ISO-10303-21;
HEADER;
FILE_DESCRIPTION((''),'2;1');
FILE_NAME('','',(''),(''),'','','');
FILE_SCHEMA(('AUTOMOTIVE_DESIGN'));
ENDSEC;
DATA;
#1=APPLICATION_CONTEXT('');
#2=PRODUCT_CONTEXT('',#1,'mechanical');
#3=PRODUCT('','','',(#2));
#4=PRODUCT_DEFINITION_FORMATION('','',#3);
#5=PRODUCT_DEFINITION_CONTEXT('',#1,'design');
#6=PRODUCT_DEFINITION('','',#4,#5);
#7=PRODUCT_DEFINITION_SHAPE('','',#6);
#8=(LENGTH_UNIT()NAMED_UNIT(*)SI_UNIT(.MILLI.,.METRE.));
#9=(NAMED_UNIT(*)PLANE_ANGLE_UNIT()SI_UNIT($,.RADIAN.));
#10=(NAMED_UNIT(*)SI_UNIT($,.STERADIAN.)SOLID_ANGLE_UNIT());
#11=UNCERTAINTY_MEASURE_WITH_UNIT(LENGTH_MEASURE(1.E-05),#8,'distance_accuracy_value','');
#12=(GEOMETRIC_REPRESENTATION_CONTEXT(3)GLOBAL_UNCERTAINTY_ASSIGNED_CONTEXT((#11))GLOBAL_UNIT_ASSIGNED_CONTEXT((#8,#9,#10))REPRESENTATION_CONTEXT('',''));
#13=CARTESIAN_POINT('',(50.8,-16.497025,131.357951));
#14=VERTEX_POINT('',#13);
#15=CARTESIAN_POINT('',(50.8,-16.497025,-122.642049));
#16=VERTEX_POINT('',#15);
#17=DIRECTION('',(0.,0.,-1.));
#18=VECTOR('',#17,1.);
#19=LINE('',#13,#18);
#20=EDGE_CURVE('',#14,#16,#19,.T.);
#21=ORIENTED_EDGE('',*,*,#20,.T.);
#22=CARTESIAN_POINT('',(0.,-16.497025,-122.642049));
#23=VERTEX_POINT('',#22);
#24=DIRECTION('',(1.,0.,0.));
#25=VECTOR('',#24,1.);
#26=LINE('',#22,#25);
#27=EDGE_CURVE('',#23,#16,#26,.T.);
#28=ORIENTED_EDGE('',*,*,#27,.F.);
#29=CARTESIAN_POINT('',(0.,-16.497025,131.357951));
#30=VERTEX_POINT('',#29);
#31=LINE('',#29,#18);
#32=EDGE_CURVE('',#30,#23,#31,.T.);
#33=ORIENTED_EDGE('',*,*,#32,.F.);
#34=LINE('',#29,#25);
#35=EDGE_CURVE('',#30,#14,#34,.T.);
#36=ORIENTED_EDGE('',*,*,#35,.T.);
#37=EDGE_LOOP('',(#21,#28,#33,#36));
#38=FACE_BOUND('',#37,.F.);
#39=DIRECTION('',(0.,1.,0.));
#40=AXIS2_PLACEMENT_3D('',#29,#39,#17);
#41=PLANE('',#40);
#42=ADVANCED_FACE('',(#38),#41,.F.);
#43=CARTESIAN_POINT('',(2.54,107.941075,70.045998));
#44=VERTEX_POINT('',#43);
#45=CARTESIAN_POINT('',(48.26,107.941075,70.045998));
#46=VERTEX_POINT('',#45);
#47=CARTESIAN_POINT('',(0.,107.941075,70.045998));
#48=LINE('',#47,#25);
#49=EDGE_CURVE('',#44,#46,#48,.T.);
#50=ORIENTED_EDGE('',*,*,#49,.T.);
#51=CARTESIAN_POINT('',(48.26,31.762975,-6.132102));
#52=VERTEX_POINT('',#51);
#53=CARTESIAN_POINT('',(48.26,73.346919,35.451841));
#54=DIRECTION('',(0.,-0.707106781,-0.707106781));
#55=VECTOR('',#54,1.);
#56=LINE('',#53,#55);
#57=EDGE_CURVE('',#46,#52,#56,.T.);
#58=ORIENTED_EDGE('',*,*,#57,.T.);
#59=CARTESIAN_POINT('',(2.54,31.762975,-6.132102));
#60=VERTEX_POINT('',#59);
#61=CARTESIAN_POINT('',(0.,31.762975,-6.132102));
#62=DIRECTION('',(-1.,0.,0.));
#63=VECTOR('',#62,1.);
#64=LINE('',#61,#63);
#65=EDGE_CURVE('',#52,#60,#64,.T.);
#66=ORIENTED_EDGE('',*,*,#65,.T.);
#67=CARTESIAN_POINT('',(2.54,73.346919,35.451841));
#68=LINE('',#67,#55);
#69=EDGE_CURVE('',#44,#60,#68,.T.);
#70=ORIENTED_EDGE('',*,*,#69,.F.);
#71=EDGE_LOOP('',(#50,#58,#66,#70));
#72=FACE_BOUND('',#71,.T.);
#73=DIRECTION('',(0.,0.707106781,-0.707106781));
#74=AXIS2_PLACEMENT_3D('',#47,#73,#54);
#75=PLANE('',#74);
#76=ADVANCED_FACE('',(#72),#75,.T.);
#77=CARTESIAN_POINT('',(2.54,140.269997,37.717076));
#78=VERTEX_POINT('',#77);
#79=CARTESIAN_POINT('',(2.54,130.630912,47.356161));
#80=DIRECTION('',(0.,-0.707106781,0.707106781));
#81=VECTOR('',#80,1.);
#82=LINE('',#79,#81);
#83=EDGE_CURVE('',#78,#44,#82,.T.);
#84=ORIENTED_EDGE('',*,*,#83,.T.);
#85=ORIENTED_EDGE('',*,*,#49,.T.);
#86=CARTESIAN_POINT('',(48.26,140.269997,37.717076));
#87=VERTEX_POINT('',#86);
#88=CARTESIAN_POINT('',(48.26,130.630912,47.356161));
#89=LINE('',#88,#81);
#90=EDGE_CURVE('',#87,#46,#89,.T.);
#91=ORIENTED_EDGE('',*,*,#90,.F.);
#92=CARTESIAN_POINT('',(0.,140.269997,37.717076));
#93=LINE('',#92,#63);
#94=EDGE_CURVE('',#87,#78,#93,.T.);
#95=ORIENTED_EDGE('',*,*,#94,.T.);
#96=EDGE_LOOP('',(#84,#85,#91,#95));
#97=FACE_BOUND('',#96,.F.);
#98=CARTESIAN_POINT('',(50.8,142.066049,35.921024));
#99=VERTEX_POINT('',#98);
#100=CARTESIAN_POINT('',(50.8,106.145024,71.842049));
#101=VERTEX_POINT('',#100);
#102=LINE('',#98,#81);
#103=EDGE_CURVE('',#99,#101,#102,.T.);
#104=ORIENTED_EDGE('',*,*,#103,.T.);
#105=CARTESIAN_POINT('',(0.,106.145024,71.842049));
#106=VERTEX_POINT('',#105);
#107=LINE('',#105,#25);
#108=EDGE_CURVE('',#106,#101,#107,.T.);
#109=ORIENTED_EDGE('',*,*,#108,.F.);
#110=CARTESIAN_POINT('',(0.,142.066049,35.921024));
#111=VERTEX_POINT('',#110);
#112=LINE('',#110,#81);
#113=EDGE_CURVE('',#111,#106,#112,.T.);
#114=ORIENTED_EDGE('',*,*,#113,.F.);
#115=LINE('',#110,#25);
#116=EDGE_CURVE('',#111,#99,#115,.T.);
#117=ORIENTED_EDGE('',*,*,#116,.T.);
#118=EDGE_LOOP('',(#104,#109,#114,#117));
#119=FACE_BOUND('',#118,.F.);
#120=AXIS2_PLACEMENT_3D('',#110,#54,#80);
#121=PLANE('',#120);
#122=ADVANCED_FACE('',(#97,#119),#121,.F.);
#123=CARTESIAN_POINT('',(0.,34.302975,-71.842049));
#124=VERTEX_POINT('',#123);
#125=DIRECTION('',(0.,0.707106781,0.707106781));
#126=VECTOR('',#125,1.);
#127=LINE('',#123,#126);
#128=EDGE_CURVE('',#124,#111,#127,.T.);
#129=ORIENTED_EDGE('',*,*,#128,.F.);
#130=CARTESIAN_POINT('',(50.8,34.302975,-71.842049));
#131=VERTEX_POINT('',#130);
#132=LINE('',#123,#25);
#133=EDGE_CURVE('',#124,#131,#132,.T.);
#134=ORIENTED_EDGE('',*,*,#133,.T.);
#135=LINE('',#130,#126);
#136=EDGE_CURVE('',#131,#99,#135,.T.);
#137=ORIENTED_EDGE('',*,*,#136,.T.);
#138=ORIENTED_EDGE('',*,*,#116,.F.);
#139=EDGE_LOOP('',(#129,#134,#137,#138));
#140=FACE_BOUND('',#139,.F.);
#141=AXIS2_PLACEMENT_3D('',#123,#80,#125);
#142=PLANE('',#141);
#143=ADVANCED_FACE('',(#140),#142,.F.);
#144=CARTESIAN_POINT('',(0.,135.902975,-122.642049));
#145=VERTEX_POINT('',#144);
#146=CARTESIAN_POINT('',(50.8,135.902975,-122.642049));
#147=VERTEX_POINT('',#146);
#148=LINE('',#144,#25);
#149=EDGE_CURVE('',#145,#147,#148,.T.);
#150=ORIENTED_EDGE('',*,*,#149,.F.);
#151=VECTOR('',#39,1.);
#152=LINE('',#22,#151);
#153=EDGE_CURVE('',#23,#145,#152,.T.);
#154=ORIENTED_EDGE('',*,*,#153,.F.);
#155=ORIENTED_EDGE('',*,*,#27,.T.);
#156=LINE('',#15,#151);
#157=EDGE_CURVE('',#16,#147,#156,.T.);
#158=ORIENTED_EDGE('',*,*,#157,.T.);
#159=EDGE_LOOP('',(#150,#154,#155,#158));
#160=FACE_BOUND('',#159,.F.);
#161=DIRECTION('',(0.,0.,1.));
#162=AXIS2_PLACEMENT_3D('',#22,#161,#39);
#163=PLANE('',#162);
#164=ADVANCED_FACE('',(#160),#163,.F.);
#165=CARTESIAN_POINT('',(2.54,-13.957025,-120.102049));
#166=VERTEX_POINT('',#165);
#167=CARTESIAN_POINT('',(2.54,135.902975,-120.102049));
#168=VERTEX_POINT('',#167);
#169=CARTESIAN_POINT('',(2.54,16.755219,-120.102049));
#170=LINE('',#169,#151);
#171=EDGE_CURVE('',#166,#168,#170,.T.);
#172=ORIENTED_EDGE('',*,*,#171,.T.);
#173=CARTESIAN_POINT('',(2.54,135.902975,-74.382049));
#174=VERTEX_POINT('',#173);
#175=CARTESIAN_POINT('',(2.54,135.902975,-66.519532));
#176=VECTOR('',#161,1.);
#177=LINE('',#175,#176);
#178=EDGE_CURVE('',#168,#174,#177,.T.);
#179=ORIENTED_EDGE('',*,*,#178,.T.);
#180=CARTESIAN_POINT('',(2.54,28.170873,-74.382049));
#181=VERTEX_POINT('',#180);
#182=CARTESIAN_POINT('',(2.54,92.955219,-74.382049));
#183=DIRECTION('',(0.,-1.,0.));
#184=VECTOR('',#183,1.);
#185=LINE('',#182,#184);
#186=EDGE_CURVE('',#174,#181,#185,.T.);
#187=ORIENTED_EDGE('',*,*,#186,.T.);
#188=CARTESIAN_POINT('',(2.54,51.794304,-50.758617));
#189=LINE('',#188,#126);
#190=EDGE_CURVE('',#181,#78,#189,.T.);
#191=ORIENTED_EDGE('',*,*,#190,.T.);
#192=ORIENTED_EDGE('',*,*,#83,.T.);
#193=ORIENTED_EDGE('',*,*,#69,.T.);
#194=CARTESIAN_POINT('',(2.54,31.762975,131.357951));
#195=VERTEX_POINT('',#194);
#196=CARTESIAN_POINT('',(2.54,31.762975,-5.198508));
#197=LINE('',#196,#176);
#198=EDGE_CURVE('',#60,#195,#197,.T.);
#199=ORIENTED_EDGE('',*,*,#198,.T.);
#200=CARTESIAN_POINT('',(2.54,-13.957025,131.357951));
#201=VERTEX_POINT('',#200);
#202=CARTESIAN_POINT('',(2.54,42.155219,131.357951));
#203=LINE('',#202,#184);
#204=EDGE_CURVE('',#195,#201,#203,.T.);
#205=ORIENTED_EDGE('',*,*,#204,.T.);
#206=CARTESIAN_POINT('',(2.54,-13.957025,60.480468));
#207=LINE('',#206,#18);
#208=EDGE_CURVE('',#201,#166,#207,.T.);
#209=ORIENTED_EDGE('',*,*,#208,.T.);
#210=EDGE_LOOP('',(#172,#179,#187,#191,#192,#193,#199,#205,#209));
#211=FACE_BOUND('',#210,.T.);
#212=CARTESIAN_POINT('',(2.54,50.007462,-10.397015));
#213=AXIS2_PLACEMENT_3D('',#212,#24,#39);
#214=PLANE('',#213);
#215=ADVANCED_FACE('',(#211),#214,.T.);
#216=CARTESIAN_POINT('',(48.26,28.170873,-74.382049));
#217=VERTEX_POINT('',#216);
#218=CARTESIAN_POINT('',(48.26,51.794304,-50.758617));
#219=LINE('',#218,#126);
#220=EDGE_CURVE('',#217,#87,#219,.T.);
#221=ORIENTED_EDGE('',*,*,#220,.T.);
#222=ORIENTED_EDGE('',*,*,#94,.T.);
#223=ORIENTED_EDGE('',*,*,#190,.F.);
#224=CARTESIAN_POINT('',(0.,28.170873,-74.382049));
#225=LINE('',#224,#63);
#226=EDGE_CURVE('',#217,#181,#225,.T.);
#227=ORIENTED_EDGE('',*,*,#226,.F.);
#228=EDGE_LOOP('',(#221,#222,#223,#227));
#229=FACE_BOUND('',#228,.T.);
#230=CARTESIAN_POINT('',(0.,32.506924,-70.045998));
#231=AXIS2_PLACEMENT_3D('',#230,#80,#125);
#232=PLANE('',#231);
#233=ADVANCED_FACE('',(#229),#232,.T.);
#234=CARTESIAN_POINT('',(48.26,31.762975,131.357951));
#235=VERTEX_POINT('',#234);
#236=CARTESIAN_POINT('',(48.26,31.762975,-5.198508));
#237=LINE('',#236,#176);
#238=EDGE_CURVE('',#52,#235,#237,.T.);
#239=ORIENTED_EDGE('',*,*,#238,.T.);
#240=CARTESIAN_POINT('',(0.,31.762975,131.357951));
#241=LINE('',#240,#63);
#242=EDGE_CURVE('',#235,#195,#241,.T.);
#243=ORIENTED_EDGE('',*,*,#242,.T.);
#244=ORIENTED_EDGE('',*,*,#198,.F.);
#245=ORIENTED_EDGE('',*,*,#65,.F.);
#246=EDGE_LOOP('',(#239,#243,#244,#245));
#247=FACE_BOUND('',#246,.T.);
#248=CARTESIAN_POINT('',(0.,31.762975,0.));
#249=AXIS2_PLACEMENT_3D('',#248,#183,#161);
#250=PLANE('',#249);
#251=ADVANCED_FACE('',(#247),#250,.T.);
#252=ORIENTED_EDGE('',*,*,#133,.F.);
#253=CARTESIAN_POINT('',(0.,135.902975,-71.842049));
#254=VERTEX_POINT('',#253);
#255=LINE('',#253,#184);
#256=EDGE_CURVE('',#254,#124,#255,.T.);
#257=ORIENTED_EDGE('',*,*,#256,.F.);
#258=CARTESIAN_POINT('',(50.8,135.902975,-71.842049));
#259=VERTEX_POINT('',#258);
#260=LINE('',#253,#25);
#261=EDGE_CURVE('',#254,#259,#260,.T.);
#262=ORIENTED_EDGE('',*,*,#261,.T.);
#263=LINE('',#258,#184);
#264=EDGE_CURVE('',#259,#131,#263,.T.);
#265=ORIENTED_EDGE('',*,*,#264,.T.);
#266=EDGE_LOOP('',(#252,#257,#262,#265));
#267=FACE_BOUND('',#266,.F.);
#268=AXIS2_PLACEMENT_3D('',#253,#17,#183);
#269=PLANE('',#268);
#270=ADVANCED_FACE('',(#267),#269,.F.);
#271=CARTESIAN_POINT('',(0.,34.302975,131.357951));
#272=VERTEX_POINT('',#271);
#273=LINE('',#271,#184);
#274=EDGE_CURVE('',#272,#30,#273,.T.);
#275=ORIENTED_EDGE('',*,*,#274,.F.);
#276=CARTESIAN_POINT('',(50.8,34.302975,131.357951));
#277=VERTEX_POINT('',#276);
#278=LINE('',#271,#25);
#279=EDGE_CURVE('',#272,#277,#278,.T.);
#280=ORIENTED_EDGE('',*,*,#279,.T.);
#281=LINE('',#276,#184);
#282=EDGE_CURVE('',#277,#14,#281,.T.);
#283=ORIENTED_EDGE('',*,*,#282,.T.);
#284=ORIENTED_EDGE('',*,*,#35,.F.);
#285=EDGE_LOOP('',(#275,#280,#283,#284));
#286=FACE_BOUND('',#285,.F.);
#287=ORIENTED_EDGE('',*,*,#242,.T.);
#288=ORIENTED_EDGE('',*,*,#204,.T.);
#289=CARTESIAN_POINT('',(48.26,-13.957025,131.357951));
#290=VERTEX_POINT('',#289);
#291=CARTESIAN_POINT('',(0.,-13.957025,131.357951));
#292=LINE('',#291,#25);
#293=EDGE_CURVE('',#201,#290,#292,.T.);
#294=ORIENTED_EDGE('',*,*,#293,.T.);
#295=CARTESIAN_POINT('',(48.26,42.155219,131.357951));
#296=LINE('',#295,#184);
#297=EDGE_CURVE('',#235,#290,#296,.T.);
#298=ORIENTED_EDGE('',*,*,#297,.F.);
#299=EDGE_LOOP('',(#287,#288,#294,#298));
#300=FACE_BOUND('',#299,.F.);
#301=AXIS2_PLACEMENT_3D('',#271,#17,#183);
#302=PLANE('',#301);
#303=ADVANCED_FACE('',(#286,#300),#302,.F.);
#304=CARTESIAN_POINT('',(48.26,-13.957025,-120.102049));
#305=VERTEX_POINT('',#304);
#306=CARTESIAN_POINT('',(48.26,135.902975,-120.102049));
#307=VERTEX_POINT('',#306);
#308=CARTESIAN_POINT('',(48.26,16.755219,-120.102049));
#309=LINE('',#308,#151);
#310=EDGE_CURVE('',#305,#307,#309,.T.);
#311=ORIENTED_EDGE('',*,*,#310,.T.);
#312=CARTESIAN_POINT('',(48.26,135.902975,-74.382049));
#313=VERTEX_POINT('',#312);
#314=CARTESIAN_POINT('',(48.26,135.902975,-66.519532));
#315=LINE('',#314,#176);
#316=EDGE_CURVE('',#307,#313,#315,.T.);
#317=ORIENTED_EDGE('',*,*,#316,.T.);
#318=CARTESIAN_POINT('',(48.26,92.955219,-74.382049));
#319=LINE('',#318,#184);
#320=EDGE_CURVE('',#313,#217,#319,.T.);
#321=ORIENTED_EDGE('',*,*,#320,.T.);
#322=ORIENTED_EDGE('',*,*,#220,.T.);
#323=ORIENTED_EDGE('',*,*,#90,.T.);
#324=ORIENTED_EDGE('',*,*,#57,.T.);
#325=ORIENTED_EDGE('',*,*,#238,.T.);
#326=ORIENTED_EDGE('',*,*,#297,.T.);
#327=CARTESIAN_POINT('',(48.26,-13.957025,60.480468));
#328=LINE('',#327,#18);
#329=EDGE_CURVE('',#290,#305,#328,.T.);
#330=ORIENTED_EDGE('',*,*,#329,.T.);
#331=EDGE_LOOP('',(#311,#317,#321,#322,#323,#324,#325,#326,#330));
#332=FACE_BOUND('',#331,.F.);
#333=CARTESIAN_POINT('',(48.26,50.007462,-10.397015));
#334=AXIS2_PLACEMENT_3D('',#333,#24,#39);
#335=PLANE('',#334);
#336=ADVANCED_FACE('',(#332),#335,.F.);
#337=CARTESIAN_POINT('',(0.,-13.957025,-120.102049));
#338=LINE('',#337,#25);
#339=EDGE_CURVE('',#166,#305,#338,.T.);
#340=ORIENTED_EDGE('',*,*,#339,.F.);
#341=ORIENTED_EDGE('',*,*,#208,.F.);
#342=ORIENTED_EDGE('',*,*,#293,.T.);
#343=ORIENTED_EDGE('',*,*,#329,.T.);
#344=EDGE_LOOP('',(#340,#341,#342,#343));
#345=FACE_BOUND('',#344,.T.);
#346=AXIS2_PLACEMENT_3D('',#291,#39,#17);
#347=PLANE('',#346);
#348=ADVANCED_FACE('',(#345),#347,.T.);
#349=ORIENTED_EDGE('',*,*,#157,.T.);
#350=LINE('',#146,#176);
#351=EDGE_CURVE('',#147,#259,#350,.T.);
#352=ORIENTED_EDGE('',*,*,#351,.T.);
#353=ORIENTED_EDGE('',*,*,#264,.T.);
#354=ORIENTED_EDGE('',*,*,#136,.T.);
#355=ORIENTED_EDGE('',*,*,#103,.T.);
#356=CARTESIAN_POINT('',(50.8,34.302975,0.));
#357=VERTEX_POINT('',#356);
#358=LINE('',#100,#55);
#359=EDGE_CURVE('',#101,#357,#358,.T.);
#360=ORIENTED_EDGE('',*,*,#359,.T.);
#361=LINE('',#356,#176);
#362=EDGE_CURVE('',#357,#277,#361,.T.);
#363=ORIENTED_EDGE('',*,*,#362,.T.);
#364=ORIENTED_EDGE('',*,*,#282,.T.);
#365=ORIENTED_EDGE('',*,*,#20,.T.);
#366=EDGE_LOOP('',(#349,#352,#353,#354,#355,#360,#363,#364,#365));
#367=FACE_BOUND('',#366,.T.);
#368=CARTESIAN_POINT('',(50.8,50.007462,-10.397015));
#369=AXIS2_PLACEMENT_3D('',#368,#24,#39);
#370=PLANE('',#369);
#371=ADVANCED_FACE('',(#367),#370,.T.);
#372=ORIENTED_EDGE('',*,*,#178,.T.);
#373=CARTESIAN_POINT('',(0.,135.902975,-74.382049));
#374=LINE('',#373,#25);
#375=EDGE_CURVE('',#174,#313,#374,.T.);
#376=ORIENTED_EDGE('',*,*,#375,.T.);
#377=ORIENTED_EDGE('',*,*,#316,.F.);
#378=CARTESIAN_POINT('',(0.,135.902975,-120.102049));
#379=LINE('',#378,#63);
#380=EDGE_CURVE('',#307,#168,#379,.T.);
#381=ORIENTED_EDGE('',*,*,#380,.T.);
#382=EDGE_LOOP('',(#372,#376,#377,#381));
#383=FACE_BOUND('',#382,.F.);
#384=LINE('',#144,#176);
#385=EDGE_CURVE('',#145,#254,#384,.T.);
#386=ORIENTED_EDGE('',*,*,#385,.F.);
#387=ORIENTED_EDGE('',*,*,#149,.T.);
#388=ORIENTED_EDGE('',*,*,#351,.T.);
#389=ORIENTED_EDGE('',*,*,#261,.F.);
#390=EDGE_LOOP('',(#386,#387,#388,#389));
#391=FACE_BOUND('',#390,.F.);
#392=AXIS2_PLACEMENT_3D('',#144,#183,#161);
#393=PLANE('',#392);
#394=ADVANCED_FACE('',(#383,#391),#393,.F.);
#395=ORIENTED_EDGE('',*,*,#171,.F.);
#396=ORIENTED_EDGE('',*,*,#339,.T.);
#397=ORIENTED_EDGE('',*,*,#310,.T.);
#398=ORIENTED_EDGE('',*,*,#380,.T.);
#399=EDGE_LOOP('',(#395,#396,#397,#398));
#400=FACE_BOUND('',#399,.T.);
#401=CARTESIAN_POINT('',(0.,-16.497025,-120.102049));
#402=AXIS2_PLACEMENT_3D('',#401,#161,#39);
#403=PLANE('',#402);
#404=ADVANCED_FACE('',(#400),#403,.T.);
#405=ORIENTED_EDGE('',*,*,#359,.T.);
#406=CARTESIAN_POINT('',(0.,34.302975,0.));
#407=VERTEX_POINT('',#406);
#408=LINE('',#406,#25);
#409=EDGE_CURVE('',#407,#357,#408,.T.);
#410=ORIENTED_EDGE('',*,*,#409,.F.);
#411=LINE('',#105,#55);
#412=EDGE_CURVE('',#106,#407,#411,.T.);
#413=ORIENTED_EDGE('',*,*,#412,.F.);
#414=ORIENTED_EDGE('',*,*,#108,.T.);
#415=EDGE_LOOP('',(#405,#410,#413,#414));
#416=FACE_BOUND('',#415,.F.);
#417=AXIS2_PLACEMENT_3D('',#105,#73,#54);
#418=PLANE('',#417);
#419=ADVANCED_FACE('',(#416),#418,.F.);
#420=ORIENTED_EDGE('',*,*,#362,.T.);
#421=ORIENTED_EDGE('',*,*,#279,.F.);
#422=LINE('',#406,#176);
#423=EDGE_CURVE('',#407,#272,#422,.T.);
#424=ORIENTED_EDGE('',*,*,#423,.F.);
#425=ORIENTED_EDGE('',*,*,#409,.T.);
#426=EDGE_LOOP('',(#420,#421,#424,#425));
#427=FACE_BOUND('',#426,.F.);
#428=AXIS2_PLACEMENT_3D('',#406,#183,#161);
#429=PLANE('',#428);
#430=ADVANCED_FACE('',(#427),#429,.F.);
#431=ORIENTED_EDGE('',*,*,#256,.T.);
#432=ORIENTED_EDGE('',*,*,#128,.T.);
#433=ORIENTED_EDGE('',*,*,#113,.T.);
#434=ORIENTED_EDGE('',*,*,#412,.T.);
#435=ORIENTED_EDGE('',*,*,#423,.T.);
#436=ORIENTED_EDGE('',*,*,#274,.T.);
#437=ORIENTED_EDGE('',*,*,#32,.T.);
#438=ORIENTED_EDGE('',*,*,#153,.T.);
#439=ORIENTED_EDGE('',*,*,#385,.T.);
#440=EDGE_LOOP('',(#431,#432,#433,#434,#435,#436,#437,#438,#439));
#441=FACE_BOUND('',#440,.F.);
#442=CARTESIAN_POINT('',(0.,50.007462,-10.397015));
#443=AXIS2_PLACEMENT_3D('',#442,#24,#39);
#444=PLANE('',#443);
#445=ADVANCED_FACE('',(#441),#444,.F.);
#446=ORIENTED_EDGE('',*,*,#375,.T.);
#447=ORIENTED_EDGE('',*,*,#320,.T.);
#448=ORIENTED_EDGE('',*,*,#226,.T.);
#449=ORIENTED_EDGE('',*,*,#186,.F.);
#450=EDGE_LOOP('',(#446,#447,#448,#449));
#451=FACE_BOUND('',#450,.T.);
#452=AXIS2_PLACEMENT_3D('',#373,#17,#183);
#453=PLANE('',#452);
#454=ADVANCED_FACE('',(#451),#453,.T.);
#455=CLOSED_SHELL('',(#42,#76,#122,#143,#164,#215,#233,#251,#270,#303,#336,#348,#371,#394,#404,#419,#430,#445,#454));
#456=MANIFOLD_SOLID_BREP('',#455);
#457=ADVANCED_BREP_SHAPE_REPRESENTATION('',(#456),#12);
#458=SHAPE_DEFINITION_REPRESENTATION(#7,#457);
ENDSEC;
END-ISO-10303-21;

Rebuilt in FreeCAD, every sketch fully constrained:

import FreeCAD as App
import Part
import Sketcher

V = App.Vector
Q = App.Units.Quantity


def faces_at(feature, points):
    """Names of the faces that lie closest to the given points."""
    faces = feature.Shape.Faces
    near = lambda p: min(range(len(faces)), key=lambda i: faces[i].distToShape(Part.Vertex(*p))[0])
    return sorted({f"Face{near(p) + 1}" for p in points})


def add_polygon(sketch, points):
    """Adds a closed chain of lines whose ends are joined by coincident constraints."""
    first, n = sketch.GeometryCount, len(points)
    for a, b in zip(points, points[1:] + points[:1]):
        sketch.addGeometry(Part.LineSegment(App.Vector(*a, 0), App.Vector(*b, 0)), False)
    for i in range(n):
        sketch.addConstraint(Sketcher.Constraint("Coincident", first + i, 2, first + (i + 1) % n, 1))

doc = App.newDocument("Part")
params = doc.addObject("Spreadsheet::Sheet", "Params")
for row, (alias, value) in enumerate([
    ("sketch1_width", "2 in"),
    ("sketch1_width2", "6 in"),
    ("sketch1_height", "10 in"),
    ("sketch1_length", "6 in"),
    ("sketch1_length2", "2 in"),
    ("pad1_length", "2 in"),
    ("thickness_wall", "0.1 in"),
], start=1):
    params.set(f"A{row}", alias)
    params.set(f"B{row}", "=" + value)
    params.setAlias(f"B{row}", alias)

body = doc.addObject("PartDesign::Body", "Body")

# Sketch on YZ plane
sketch1 = doc.addObject("Sketcher::SketchObject", "Sketch")
body.addObject(sketch1)
sketch1.AttachmentSupport = (doc.YZ_Plane, [""])
sketch1.MapMode = "FlatFace"
add_polygon(sketch1, [(34, 131), (-16, 131), (-16, -123), (136, -123), (136, -72), (34, -72), (142, 36), (106, 72), (34, 0)])  # lines 0-8
sketch1.addConstraint([
    Sketcher.Constraint("Horizontal", 0),
    Sketcher.Constraint("Vertical", 1),
    Sketcher.Constraint("Horizontal", 2),
    Sketcher.Constraint("Vertical", 3),
    Sketcher.Constraint("Horizontal", 4),
    Sketcher.Constraint("Vertical", 8),
    Sketcher.Constraint("PointOnObject", 7, 2, -1),
    Sketcher.Constraint("Perpendicular", 5, 6),
    Sketcher.Constraint("Perpendicular", 6, 7),
    Sketcher.Constraint("Vertical", 4, 2, 7, 2),
    Sketcher.Constraint("Equal", 0, 3),
    Sketcher.Constraint("DistanceX", 0, 2, 0, 1, Q("2 in")),
    Sketcher.Constraint("DistanceX", 2, 1, 2, 2, Q("6 in")),
    Sketcher.Constraint("DistanceY", 1, 2, 1, 1, Q("10 in")),
    Sketcher.Constraint("Distance", 5, Q("6 in")),
    Sketcher.Constraint("Distance", 6, Q("2 in")),
    Sketcher.Constraint("Distance", 7, Q("4 in")),
    Sketcher.Constraint("DistanceX", -1, 1, 5, 2, 142.066049),
])
sketch1.setExpression("Constraints[20]", "Params.sketch1_width")
sketch1.setExpression("Constraints[21]", "Params.sketch1_width2")
sketch1.setExpression("Constraints[22]", "Params.sketch1_height")
sketch1.setExpression("Constraints[23]", "Params.sketch1_length")
sketch1.setExpression("Constraints[24]", "Params.sketch1_length2")
pad1 = doc.addObject("PartDesign::Pad", "Pad")
body.addObject(pad1)
pad1.Profile = sketch1
pad1.setExpression("Length", "Params.pad1_length")
doc.recompute()

thickness = doc.addObject("PartDesign::Thickness", "Thickness")
body.addObject(thickness)
thickness.Base = (pad1, faces_at(pad1, [(25.4, 8.903, 131.358), (25.4, 124.106, 53.882), (25.4, 135.903, -97.242)]))
thickness.setExpression("Value", "Params.thickness_wall")
thickness.Reversed = True
thickness.Join = "Intersection"

doc.recompute()
